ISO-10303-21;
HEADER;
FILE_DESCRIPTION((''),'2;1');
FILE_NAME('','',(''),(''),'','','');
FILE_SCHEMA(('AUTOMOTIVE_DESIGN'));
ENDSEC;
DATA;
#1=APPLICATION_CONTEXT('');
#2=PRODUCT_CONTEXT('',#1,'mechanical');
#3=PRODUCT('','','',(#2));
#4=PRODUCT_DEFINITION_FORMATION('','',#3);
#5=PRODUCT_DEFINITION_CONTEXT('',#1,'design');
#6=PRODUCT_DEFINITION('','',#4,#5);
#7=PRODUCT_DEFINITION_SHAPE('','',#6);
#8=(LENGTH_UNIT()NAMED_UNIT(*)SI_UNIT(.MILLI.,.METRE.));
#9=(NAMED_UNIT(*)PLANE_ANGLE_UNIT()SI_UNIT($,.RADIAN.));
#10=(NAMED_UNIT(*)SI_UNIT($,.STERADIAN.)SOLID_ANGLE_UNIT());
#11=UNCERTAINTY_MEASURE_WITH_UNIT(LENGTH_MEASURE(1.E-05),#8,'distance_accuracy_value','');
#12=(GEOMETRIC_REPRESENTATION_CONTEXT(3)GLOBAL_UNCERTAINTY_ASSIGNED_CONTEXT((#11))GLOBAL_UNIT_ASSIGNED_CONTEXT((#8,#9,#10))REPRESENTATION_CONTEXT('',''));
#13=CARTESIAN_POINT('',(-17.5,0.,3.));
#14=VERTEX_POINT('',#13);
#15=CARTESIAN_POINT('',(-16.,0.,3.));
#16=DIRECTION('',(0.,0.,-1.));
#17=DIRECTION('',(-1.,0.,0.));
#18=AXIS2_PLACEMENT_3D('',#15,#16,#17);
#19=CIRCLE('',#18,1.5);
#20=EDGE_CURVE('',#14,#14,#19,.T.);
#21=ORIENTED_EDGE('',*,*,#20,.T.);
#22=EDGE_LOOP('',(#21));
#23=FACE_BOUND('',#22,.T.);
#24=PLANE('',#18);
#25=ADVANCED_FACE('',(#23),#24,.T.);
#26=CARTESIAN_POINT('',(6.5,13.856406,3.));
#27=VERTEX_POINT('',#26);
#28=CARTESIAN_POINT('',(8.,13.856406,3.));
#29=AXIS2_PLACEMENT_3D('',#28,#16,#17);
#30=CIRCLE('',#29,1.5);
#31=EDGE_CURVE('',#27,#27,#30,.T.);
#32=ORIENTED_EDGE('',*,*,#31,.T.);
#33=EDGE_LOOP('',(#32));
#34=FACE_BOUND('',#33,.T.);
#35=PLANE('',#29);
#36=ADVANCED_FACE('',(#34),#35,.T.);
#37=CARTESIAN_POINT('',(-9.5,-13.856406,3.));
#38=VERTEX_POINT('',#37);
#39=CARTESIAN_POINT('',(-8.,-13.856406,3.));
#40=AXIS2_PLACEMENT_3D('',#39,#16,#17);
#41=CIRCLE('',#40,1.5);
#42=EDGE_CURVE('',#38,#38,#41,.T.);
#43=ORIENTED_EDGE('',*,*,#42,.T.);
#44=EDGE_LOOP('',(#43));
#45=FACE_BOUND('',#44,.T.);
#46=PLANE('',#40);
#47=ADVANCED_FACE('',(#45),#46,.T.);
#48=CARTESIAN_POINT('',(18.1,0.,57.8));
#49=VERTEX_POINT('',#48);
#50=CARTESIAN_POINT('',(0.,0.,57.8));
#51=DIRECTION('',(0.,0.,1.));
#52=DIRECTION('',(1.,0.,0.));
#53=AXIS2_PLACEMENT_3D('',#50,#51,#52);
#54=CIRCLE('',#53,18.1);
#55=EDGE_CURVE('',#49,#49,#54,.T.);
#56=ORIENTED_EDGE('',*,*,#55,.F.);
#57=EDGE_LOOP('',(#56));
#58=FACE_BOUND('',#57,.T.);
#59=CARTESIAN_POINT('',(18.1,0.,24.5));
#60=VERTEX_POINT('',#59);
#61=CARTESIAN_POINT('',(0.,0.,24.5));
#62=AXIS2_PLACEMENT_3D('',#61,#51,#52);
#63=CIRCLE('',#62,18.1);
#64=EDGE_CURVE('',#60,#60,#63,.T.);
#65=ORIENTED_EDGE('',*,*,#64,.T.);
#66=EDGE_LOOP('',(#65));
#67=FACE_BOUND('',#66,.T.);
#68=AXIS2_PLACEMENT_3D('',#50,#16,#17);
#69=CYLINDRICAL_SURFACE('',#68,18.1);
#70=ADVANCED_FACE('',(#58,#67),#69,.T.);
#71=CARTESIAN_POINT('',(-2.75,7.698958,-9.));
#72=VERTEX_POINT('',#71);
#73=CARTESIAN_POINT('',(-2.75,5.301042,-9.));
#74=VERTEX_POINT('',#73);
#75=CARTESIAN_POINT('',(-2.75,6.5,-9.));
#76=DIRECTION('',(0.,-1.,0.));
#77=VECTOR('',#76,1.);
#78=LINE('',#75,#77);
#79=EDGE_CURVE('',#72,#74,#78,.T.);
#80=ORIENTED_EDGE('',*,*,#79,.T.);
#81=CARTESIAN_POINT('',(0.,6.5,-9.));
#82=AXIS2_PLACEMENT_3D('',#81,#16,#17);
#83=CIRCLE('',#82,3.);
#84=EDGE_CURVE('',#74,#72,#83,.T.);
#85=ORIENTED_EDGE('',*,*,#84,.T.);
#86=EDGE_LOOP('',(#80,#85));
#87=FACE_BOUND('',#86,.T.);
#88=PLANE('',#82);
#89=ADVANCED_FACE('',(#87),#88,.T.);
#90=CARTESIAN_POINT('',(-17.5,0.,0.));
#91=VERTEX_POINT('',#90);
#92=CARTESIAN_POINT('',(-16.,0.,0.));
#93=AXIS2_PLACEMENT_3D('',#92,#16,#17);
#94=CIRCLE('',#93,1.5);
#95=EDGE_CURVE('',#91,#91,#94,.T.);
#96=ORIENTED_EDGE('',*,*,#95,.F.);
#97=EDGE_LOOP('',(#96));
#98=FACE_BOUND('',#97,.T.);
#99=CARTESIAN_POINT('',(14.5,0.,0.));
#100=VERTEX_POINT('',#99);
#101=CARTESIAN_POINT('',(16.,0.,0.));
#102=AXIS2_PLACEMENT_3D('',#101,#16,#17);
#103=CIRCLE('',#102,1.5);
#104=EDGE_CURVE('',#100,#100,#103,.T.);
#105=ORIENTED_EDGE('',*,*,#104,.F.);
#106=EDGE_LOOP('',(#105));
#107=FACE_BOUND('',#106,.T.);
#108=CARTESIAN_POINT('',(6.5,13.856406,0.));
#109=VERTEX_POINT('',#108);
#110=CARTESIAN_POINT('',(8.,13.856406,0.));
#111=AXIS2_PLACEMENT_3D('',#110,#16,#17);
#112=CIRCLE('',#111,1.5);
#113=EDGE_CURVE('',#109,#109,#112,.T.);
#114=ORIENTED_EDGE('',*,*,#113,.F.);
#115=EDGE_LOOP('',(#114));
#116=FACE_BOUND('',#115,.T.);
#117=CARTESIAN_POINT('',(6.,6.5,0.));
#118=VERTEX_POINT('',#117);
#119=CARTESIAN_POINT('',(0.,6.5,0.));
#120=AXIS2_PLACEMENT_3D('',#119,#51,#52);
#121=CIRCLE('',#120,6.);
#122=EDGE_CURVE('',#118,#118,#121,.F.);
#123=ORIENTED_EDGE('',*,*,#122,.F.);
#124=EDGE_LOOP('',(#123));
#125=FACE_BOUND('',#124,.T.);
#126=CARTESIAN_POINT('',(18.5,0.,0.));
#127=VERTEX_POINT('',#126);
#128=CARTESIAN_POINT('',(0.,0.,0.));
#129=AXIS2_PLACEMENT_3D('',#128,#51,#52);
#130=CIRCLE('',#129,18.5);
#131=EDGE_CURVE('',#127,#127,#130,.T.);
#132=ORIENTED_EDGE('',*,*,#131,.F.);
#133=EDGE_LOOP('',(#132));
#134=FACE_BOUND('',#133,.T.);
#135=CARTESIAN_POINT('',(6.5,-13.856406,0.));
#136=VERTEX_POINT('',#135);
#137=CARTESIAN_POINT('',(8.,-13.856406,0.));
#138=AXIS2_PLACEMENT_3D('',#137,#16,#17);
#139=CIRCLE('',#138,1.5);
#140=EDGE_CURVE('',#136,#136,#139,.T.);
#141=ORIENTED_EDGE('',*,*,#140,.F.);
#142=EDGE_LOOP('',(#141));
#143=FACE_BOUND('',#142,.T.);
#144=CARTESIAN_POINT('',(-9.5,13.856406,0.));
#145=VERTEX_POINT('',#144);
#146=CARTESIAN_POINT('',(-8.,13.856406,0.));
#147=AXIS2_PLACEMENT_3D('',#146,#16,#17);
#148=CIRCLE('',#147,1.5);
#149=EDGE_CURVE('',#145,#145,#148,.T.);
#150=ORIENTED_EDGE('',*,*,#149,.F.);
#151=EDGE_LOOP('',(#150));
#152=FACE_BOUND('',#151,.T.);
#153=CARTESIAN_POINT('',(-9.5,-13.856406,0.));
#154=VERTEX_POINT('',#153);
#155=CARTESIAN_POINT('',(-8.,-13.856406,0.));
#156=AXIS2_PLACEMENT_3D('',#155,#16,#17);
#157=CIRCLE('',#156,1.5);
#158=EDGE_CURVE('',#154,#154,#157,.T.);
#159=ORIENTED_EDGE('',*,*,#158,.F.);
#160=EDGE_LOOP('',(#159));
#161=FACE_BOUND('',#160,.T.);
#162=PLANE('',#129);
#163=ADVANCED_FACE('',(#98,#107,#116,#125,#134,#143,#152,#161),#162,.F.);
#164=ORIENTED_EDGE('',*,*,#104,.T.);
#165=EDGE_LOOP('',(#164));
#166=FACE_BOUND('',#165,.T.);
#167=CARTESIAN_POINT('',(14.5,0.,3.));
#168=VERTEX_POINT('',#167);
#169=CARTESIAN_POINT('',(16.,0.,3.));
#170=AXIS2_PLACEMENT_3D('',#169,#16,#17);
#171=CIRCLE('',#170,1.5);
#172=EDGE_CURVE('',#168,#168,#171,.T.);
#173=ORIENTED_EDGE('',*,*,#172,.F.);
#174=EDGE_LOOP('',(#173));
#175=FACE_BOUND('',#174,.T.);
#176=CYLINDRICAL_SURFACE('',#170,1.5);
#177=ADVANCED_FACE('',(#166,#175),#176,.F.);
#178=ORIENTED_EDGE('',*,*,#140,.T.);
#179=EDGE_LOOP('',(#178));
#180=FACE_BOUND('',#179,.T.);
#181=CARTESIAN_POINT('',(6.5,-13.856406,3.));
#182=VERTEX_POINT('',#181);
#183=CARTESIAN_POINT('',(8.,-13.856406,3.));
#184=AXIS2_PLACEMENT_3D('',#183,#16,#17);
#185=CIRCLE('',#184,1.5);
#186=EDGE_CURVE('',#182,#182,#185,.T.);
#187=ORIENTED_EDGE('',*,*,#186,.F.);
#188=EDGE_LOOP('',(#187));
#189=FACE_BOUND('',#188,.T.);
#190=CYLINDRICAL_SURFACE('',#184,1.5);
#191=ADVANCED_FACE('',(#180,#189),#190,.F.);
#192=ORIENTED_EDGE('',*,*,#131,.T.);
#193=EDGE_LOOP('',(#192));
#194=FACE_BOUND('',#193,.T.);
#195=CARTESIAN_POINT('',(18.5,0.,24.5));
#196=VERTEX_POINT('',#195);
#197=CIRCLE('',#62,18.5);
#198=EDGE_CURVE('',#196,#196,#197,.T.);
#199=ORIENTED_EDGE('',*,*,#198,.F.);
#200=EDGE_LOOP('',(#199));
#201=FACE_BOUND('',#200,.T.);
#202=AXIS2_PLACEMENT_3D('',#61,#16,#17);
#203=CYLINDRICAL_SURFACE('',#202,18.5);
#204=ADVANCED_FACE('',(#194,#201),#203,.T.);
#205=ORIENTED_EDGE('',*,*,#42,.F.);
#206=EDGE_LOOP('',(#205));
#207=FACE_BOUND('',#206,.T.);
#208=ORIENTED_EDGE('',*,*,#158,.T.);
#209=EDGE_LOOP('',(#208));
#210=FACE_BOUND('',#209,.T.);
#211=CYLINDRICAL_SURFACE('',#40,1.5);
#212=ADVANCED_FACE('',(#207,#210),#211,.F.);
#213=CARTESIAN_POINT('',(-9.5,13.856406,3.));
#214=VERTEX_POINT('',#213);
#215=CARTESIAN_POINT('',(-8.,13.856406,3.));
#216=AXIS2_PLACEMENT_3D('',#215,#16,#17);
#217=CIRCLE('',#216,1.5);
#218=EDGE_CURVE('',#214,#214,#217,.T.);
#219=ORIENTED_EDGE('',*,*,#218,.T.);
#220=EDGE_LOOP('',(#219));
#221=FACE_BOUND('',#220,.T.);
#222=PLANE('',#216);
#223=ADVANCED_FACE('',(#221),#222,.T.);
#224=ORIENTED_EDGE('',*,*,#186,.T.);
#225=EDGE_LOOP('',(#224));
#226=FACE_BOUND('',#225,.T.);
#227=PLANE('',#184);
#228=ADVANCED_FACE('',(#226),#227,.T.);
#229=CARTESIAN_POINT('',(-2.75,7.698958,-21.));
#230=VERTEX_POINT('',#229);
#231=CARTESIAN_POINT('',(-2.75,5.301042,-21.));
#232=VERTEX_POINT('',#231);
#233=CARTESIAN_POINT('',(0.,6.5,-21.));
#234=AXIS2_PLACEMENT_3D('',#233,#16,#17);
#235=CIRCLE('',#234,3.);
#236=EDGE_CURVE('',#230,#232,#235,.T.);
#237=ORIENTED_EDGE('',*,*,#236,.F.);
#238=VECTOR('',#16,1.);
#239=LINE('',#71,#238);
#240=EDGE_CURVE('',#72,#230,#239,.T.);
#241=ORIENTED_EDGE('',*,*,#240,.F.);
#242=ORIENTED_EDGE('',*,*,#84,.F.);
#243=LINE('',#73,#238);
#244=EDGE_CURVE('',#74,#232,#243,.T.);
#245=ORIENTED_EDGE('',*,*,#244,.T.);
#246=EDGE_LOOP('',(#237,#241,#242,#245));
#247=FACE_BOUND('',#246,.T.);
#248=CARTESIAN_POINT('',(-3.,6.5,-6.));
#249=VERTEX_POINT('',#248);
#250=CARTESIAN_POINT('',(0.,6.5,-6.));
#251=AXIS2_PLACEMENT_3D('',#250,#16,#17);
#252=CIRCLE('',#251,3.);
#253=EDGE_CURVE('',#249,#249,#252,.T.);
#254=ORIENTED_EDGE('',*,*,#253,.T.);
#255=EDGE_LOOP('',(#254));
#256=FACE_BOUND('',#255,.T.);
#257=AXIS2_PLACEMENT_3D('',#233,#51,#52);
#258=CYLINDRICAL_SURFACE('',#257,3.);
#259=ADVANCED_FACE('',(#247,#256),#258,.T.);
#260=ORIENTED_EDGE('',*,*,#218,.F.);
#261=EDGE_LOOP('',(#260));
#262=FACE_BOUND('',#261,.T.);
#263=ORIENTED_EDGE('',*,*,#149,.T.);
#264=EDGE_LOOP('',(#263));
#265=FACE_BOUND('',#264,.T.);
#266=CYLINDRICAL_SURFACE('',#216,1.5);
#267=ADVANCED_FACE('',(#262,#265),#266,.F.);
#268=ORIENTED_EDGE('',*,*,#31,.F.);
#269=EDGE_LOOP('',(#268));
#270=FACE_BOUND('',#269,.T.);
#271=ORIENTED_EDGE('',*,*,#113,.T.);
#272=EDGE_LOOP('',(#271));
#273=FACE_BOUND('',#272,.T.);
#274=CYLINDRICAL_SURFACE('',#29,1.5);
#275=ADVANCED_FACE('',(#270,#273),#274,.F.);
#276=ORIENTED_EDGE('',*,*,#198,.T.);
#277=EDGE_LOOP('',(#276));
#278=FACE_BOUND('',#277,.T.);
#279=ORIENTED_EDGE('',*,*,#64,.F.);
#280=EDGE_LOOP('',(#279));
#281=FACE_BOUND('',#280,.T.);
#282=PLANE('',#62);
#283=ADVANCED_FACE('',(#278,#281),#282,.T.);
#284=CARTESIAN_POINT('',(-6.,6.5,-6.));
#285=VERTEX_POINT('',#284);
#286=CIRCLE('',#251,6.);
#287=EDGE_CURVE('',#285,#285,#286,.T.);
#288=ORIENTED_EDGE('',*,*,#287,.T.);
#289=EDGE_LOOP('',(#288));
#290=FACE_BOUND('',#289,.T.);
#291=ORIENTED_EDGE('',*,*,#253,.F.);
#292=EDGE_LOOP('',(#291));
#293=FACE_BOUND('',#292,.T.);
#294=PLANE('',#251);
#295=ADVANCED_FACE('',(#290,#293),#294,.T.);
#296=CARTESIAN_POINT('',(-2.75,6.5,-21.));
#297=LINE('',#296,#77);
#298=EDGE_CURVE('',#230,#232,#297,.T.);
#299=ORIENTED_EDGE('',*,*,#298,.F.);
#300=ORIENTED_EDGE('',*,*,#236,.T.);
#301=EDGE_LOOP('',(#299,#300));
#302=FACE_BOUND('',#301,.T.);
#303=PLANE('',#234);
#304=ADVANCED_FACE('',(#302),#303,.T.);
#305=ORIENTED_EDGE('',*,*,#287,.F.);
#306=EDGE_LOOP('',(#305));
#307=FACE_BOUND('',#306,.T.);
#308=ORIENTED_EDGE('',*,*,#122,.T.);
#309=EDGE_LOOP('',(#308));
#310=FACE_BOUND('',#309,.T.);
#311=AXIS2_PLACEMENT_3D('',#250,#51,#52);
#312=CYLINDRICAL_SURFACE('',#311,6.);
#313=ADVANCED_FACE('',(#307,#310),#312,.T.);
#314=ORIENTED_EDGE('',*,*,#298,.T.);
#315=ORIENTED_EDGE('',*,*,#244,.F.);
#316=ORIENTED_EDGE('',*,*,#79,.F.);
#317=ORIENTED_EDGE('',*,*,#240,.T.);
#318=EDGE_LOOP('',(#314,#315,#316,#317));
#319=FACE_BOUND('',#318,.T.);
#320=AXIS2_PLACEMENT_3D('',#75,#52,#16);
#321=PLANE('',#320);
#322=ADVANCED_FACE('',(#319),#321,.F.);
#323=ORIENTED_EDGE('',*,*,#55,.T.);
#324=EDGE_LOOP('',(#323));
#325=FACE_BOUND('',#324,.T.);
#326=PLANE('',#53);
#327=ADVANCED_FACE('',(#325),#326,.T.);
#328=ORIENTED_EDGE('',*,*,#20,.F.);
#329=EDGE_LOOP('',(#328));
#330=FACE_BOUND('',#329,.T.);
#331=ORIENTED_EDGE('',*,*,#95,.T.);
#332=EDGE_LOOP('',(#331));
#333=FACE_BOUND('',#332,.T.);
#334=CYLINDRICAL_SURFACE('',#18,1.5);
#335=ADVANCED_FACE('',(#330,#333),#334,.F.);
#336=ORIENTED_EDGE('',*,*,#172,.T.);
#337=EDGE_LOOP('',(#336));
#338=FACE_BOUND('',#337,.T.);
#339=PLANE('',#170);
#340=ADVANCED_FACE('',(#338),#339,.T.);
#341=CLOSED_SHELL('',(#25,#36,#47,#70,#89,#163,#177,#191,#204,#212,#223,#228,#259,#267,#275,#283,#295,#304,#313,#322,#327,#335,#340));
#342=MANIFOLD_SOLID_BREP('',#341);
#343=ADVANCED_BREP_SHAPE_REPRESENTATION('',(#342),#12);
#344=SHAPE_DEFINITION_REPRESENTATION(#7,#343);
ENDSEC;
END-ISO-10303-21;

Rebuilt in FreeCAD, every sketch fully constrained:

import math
import FreeCAD as App
import Part
import Sketcher
Q = App.Units.Quantity

doc = App.newDocument("Part")
body = doc.addObject("PartDesign::Body", "Body")

sketch1 = body.newObject("Sketcher::SketchObject", "Sketch")
sketch1.AttachmentSupport = (doc.getObject("XY_Plane"), [""])
sketch1.MapMode = "FlatFace"
sketch1.addGeometry(Part.Circle(App.Vector(0, 0, 0), App.Vector(0, 0, 1), 18), False)
sketch1.addConstraint([
    Sketcher.Constraint("Coincident", 0, 3, -1, 1),
    Sketcher.Constraint("Diameter", 0, Q("37 mm")),
])
pad1 = body.newObject("PartDesign::Pad", "Pad")
pad1.Profile = sketch1
pad1.Length = 24.5

sketch2 = body.newObject("Sketcher::SketchObject", "Sketch001")
sketch2.AttachmentSupport = (doc.getObject("XY_Plane"), [""])
sketch2.MapMode = "FlatFace"
sketch2.AttachmentOffset = App.Placement(App.Vector(0, 0, 24.5), App.Rotation())
sketch2.addGeometry(Part.Circle(App.Vector(0, 0, 0), App.Vector(0, 0, 1), 18), False)
sketch2.addConstraint([
    Sketcher.Constraint("Coincident", 0, 3, -1, 1),
    Sketcher.Constraint("Diameter", 0, Q("36.2 mm")),
])
pad2 = body.newObject("PartDesign::Pad", "Pad001")
pad2.Profile = sketch2
pad2.Length = 33.3

sketch3 = body.newObject("Sketcher::SketchObject", "Sketch002")
sketch3.AttachmentSupport = (doc.getObject("XY_Plane"), [""])
sketch3.MapMode = "FlatFace"
sketch3.addGeometry(Part.Circle(App.Vector(0, 6, 0), App.Vector(0, 0, 1), 6), False)
sketch3.addConstraint([
    Sketcher.Constraint("PointOnObject", 0, 3, -2),
    Sketcher.Constraint("Diameter", 0, Q("12 mm")),
    Sketcher.Constraint("DistanceY", -1, 1, 0, 3, Q("6.5 mm")),
])
pad3 = body.newObject("PartDesign::Pad", "Pad002")
pad3.Profile = sketch3
pad3.Length = 6
pad3.Reversed = True

sketch4 = body.newObject("Sketcher::SketchObject", "Sketch003")
sketch4.AttachmentSupport = (doc.getObject("XY_Plane"), [""])
sketch4.MapMode = "FlatFace"
sketch4.AttachmentOffset = App.Placement(App.Vector(0, 0, -6), App.Rotation())
sketch4.addGeometry(Part.Circle(App.Vector(0, 6.5, 0), App.Vector(0, 0, 1), 3), False)
sketch4.addConstraint([
    Sketcher.Constraint("PointOnObject", 0, 3, -2),
    Sketcher.Constraint("Diameter", 0, Q("6 mm")),
    Sketcher.Constraint("DistanceY", -1, 1, 0, 3, Q("6.5 mm")),
])
pad4 = body.newObject("PartDesign::Pad", "Pad003")
pad4.Profile = sketch4
pad4.Length = 15
pad4.Reversed = True

sketch5 = body.newObject("Sketcher::SketchObject", "Sketch004")
sketch5.AttachmentSupport = (doc.getObject("XY_Plane"), [""])
sketch5.MapMode = "FlatFace"
sketch5.AttachmentOffset = App.Placement(App.Vector(0, 0, -21), App.Rotation())
sketch5.addGeometry([
    Part.ArcOfCircle(Part.Circle(App.Vector(0, 6.5, 0), App.Vector(0, 0, 1), 3), math.radians(156), math.radians(204)),
    Part.LineSegment(App.Vector(-2.8, 7.7, 0), App.Vector(-2.8, 5.3, 0)),
], False)
sketch5.addConstraint([
    Sketcher.Constraint("Coincident", 0, 1, 1, 1),
    Sketcher.Constraint("Coincident", 1, 2, 0, 2),
    Sketcher.Constraint("Vertical", 1),
    Sketcher.Constraint("PointOnObject", 0, 3, -2),
    Sketcher.Constraint("Radius", 0, Q("3 mm")),
    Sketcher.Constraint("DistanceY", -1, 1, 0, 3, Q("6.5 mm")),
    Sketcher.Constraint("DistanceX", 0, 1, -1, 1, Q("2.75 mm")),
])
pocket1 = body.newObject("PartDesign::Pocket", "Pocket")
pocket1.Profile = sketch5
pocket1.Length = 12
pocket1.Reversed = True

sketch6 = body.newObject("Sketcher::SketchObject", "Sketch005")
sketch6.AttachmentSupport = (doc.getObject("XY_Plane"), [""])
sketch6.MapMode = "FlatFace"
sketch6.addGeometry([
    Part.Circle(App.Vector(16, 0, 0), App.Vector(0, 0, 1), 1.5),
    Part.Circle(App.Vector(-8, 13.9, 0), App.Vector(0, 0, 1), 1.5),
    Part.Circle(App.Vector(-8, -13.9, 0), App.Vector(0, 0, 1), 1.5),
    Part.Circle(App.Vector(-16, 0, 0), App.Vector(0, 0, 1), 1.5),
    Part.Circle(App.Vector(8, -13.9, 0), App.Vector(0, 0, 1), 1.5),
    Part.Circle(App.Vector(8, 13.9, 0), App.Vector(0, 0, 1), 1.5),
], False)
sketch6.addConstraint([
    Sketcher.Constraint("Equal", 0, 1),
    Sketcher.Constraint("Equal", 1, 2),
    Sketcher.Constraint("Equal", 2, 3),
    Sketcher.Constraint("Equal", 3, 4),
    Sketcher.Constraint("Equal", 4, 5),
    Sketcher.Constraint("Symmetric", 0, 3, 3, 3, -1, 1),
    Sketcher.Constraint("Symmetric", 1, 3, 4, 3, -1, 1),
    Sketcher.Constraint("Symmetric", 2, 3, 5, 3, -1, 1),
    Sketcher.Constraint("Symmetric", 2, 3, 4, 3, -2),
    Sketcher.Constraint("PointOnObject", 0, 3, -1),
    Sketcher.Constraint("Diameter", 0, Q("3 mm")),
    Sketcher.Constraint("DistanceX", -1, 1, 0, 3, Q("16 mm")),
    Sketcher.Constraint("DistanceX", 1, 3, -1, 1, Q("8 mm")),
    Sketcher.Constraint("DistanceY", -1, 1, 1, 3, Q("13.856406 mm")),
])
pocket2 = body.newObject("PartDesign::Pocket", "Pocket001")
pocket2.Profile = sketch6
pocket2.Length = 3
pocket2.Reversed = True

doc.recompute()
